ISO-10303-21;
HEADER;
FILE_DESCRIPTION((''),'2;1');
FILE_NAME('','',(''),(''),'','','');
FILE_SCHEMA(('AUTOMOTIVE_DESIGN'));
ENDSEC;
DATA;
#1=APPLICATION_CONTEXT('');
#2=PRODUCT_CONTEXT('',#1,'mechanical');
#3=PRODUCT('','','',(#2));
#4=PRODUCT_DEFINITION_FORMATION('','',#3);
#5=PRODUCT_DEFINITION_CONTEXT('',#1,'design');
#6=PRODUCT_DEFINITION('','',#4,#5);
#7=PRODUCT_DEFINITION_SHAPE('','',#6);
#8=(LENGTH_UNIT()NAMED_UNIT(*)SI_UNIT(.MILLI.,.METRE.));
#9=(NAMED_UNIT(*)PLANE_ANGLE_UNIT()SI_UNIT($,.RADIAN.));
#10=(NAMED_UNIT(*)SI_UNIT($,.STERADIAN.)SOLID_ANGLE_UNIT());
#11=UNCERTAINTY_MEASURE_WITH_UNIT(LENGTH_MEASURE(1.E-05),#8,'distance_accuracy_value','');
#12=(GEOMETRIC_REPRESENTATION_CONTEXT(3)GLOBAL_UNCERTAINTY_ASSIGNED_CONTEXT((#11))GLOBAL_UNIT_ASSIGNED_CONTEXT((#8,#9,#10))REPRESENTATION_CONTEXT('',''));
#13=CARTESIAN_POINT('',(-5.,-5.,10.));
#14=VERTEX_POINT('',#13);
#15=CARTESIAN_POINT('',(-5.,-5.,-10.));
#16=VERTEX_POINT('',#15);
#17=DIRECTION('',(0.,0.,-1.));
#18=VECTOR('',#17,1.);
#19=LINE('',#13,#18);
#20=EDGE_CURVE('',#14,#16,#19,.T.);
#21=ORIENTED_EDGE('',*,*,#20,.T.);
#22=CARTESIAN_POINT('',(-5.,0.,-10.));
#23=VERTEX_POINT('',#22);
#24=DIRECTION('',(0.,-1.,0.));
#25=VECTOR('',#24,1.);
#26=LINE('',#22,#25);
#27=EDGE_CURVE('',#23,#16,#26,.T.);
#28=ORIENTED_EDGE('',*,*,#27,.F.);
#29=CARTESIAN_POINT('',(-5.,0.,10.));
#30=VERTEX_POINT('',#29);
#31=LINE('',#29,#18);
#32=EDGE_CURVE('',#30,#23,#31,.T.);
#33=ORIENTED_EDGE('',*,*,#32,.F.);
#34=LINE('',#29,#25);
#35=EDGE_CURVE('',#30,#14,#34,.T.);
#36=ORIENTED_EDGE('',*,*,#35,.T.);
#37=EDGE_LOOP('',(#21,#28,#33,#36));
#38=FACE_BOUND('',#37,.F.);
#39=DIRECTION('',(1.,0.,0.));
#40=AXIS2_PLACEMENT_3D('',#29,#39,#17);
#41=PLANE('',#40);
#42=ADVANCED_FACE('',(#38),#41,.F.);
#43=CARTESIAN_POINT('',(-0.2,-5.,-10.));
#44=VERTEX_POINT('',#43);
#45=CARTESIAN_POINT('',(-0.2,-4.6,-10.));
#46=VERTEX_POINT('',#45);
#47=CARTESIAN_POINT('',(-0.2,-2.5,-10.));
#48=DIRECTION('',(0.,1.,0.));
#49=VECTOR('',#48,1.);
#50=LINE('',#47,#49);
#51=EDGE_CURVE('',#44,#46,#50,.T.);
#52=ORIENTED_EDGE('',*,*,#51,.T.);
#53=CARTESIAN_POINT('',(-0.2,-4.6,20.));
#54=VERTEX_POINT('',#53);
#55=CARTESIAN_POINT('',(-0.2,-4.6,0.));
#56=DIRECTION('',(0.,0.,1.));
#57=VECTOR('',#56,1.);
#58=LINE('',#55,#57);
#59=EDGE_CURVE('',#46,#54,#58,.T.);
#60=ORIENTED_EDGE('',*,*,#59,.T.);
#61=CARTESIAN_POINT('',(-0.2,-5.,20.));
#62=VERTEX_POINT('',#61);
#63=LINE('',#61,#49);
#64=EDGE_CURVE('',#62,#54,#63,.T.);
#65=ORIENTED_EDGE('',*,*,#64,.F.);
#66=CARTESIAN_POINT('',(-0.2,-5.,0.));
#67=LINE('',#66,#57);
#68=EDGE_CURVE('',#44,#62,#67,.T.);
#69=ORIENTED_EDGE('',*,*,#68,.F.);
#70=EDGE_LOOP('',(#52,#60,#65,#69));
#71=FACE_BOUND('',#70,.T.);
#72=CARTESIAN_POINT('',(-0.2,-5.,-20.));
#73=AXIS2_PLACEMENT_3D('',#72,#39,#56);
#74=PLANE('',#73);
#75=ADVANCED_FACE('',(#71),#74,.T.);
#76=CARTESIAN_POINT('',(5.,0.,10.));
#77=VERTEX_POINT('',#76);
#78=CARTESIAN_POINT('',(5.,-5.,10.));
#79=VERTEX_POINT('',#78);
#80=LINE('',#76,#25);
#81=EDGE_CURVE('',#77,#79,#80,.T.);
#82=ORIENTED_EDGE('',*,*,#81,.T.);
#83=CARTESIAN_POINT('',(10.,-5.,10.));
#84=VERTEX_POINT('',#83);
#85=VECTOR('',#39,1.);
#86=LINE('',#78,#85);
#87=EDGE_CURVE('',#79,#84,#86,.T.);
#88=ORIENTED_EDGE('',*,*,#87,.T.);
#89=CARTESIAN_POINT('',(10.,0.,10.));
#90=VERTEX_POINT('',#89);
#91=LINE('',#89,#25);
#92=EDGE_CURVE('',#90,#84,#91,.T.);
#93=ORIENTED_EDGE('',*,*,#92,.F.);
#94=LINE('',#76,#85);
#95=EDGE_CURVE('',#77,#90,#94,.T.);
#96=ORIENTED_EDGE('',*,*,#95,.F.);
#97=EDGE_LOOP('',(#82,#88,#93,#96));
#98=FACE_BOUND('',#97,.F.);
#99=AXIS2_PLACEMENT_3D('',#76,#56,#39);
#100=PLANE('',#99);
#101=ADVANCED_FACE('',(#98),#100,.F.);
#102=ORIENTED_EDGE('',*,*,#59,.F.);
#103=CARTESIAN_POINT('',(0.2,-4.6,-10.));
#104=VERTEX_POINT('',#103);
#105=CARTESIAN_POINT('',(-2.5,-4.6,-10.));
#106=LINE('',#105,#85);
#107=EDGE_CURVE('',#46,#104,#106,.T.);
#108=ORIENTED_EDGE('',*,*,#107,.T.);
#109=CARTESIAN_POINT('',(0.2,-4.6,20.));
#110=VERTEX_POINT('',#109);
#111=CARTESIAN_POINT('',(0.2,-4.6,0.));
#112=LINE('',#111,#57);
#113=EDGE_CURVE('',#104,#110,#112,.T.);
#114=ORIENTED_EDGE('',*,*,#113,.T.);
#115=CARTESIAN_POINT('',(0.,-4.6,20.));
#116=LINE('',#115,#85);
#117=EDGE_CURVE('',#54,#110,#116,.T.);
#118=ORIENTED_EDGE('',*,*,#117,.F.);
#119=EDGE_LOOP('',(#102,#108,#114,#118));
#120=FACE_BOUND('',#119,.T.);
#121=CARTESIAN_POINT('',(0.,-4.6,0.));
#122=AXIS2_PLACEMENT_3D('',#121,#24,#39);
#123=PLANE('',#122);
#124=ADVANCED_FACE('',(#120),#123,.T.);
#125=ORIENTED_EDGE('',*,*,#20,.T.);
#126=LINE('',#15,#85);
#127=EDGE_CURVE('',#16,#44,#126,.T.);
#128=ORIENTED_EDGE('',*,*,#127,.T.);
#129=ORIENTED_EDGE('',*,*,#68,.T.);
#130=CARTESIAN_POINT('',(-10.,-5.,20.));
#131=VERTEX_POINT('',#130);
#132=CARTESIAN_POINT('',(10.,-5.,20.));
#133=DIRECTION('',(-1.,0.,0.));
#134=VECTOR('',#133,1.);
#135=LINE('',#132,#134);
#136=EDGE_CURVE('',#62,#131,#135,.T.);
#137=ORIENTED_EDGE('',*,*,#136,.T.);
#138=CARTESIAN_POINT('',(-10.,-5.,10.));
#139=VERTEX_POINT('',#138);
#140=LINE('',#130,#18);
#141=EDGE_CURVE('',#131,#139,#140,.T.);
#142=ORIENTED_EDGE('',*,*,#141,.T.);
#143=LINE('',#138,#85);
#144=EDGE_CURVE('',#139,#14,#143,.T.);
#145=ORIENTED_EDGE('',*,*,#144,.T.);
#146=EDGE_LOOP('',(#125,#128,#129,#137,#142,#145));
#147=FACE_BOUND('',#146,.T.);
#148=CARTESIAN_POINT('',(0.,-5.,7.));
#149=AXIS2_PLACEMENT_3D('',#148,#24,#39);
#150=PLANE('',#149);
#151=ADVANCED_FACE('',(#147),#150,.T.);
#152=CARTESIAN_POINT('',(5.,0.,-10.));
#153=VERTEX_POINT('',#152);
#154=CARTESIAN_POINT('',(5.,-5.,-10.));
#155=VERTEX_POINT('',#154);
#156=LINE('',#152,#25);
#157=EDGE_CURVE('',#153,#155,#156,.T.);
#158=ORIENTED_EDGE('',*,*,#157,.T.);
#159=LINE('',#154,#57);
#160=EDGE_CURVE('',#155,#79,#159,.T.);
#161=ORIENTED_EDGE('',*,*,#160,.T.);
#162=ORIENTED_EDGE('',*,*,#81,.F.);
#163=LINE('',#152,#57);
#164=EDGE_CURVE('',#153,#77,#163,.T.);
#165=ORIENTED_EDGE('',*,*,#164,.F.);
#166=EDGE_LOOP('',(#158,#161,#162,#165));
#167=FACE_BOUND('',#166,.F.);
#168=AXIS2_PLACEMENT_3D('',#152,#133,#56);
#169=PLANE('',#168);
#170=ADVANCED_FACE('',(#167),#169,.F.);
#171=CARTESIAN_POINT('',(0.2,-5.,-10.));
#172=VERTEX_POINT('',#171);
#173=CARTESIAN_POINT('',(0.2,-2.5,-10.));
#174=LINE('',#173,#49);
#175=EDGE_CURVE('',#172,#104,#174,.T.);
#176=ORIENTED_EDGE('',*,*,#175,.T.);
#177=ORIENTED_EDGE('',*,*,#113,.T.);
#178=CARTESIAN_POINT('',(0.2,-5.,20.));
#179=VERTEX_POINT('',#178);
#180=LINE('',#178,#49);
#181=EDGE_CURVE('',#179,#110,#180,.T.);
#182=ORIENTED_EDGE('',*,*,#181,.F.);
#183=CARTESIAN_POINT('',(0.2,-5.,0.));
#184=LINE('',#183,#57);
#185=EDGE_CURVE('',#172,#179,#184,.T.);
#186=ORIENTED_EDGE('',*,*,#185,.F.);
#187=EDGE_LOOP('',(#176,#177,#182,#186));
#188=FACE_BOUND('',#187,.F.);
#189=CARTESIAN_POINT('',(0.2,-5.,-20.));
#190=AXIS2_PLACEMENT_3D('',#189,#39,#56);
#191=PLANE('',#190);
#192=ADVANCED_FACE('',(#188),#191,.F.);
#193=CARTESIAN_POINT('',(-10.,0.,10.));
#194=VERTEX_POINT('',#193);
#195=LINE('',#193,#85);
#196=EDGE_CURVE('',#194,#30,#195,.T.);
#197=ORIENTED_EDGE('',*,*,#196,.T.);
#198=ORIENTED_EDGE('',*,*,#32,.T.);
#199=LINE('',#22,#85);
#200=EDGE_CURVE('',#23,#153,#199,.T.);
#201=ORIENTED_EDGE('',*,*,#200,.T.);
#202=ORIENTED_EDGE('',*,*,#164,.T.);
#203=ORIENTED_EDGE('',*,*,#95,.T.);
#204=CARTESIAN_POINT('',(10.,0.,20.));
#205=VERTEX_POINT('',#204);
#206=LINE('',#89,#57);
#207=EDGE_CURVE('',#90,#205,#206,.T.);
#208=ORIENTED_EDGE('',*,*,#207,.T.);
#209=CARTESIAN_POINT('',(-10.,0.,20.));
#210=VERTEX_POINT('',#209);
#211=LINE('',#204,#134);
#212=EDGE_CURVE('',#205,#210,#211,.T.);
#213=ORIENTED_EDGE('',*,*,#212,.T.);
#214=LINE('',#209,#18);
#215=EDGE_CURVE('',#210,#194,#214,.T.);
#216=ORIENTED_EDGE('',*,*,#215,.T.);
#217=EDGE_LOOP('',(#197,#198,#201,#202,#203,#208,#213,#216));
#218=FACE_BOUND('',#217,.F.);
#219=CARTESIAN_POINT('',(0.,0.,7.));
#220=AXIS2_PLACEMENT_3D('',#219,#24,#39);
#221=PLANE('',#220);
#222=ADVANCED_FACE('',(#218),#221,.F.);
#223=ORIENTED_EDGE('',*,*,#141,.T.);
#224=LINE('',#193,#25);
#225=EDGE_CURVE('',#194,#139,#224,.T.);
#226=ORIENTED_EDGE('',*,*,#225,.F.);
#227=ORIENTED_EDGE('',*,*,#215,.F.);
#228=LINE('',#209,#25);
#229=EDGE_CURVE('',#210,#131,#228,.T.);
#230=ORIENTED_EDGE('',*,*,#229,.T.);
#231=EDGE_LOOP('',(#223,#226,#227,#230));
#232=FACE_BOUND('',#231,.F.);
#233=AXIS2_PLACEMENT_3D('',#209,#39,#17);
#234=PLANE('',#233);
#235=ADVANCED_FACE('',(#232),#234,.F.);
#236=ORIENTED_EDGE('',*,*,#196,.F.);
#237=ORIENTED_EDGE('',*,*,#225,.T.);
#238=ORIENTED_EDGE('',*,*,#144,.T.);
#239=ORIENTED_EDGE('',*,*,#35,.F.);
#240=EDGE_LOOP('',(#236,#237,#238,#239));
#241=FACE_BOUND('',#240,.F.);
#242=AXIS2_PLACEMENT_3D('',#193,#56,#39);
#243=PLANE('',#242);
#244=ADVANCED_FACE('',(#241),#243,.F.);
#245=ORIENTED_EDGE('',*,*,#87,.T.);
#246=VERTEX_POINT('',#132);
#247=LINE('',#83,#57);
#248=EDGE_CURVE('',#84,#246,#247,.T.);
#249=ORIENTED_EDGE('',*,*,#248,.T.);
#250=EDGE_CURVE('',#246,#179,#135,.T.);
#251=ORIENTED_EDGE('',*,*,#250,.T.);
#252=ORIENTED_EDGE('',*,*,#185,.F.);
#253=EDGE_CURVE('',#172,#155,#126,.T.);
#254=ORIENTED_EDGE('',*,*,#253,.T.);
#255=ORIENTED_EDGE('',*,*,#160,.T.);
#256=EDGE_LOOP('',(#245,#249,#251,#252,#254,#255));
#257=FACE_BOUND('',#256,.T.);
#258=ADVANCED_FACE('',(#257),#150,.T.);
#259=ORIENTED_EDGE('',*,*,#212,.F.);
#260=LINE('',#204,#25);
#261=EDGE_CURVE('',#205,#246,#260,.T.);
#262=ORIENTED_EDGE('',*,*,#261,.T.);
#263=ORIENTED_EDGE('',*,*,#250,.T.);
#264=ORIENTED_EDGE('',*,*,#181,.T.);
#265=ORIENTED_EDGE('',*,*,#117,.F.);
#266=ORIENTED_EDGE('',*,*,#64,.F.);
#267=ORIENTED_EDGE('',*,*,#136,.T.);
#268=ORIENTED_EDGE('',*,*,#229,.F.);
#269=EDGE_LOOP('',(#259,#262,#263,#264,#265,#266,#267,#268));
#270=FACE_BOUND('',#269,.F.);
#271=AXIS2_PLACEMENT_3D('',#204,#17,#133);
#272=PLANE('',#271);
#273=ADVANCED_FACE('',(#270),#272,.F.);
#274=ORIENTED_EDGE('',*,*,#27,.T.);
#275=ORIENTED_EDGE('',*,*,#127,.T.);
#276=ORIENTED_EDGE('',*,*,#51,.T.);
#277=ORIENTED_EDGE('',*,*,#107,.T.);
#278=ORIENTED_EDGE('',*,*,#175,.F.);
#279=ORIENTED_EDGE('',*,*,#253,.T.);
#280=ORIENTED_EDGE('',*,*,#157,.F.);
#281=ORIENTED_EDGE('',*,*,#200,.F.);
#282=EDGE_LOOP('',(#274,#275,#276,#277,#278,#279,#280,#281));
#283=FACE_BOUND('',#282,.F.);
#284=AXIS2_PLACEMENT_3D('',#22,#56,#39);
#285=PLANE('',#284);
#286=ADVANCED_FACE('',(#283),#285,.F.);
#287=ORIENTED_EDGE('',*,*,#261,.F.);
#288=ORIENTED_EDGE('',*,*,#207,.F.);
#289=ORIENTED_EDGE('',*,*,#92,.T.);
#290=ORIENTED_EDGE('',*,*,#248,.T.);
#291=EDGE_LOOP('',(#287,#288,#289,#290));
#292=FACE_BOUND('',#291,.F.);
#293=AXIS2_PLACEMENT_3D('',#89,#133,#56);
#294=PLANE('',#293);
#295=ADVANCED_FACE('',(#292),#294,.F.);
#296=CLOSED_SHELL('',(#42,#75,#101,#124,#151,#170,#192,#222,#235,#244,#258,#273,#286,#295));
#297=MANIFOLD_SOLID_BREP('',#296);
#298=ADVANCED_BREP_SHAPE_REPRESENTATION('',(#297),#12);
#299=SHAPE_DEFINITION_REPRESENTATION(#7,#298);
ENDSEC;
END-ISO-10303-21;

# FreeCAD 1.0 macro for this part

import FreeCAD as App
import Part
import Sketcher

V = App.Vector
Q = App.Units.Quantity

doc = App.newDocument("Part")
params = doc.addObject("Spreadsheet::Sheet", "Params")
for row, (alias, value) in enumerate([
    ("sketch1_width", "10 mm"),
    ("sketch1_width2", "5 mm"),
    ("pad1_length", "5 mm"),
    ("sketch2_height", "40 mm"),
    ("sketch2_width", "0.4 mm"),
    ("pocket1_length", "0.4 mm"),
], start=1):
    params.set(f"A{row}", alias)
    params.set(f"B{row}", "=" + value)
    params.setAlias(f"B{row}", alias)

body = doc.addObject("PartDesign::Body", "Body")

# Sketch on XZ plane
sketch1 = body.newObject("Sketcher::SketchObject", "Sketch")
sketch1.AttachmentSupport = (doc.getObject("XZ_Plane"), [""])
sketch1.MapMode = "FlatFace"
sketch1.addGeometry(Part.LineSegment(V(-5, -10, 0), V(5, -10, 0)), False)
sketch1.addGeometry(Part.LineSegment(V(5, -10, 0), V(5, 10, 0)), False)
sketch1.addGeometry(Part.LineSegment(V(5, 10, 0), V(10, 10, 0)), False)
sketch1.addGeometry(Part.LineSegment(V(10, 10, 0), V(10, 20, 0)), False)
sketch1.addGeometry(Part.LineSegment(V(10, 20, 0), V(-10, 20, 0)), False)
sketch1.addGeometry(Part.LineSegment(V(-10, 20, 0), V(-10, 10, 0)), False)
sketch1.addGeometry(Part.LineSegment(V(-10, 10, 0), V(-5, 10, 0)), False)
sketch1.addGeometry(Part.LineSegment(V(-5, 10, 0), V(-5, -10, 0)), False)
sketch1.addConstraint(Sketcher.Constraint("Coincident", 0, 2, 1, 1))
sketch1.addConstraint(Sketcher.Constraint("Coincident", 1, 2, 2, 1))
sketch1.addConstraint(Sketcher.Constraint("Coincident", 2, 2, 3, 1))
sketch1.addConstraint(Sketcher.Constraint("Coincident", 3, 2, 4, 1))
sketch1.addConstraint(Sketcher.Constraint("Coincident", 4, 2, 5, 1))
sketch1.addConstraint(Sketcher.Constraint("Coincident", 5, 2, 6, 1))
sketch1.addConstraint(Sketcher.Constraint("Coincident", 6, 2, 7, 1))
sketch1.addConstraint(Sketcher.Constraint("Coincident", 7, 2, 0, 1))
sketch1.addConstraint(Sketcher.Constraint("Horizontal", 0))
sketch1.addConstraint(Sketcher.Constraint("Vertical", 1))
sketch1.addConstraint(Sketcher.Constraint("Horizontal", 2))
sketch1.addConstraint(Sketcher.Constraint("Vertical", 3))
sketch1.addConstraint(Sketcher.Constraint("Horizontal", 4))
sketch1.addConstraint(Sketcher.Constraint("Vertical", 5))
sketch1.addConstraint(Sketcher.Constraint("Horizontal", 6))
sketch1.addConstraint(Sketcher.Constraint("Vertical", 7))
sketch1.addConstraint(Sketcher.Constraint("Symmetric", 0, 2, 6, 2, -1, 1))
sketch1.addConstraint(Sketcher.Constraint("Symmetric", 2, 2, 5, 2, -2))
sketch1.addConstraint(Sketcher.Constraint("Equal", 4, 1))
sketch1.addConstraint(Sketcher.Constraint("Equal", 0, 3))
sketch1.addConstraint(Sketcher.Constraint("DistanceX", 0, 1, 0, 2, Q("10 mm")))
sketch1.addConstraint(Sketcher.Constraint("DistanceX", 2, 1, 2, 2, Q("5 mm")))
sketch1.setExpression("Constraints[20]", "Params.sketch1_width")
sketch1.setExpression("Constraints[21]", "Params.sketch1_width2")
pad1 = body.newObject("PartDesign::Pad", "Pad")
pad1.Profile = sketch1
pad1.setExpression("Length", "Params.pad1_length")

# Sketch on XZ plane
sketch2 = body.newObject("Sketcher::SketchObject", "Sketch001")
sketch2.AttachmentSupport = (doc.getObject("XZ_Plane"), [""])
sketch2.MapMode = "FlatFace"
sketch2.AttachmentOffset = App.Placement(V(0, 0, 5), App.Rotation())
sketch2.addGeometry(Part.LineSegment(V(-0.2, 20, 0), V(-0.2, -20, 0)), False)
sketch2.addGeometry(Part.LineSegment(V(-0.2, -20, 0), V(0.2, -20, 0)), False)
sketch2.addGeometry(Part.LineSegment(V(0.2, -20, 0), V(0.2, 20, 0)), False)
sketch2.addGeometry(Part.LineSegment(V(0.2, 20, 0), V(-0.2, 20, 0)), False)
sketch2.addConstraint(Sketcher.Constraint("Coincident", 0, 2, 1, 1))
sketch2.addConstraint(Sketcher.Constraint("Coincident", 1, 2, 2, 1))
sketch2.addConstraint(Sketcher.Constraint("Coincident", 2, 2, 3, 1))
sketch2.addConstraint(Sketcher.Constraint("Coincident", 3, 2, 0, 1))
sketch2.addConstraint(Sketcher.Constraint("Vertical", 0))
sketch2.addConstraint(Sketcher.Constraint("Horizontal", 1))
sketch2.addConstraint(Sketcher.Constraint("Vertical", 2))
sketch2.addConstraint(Sketcher.Constraint("Horizontal", 3))
sketch2.addConstraint(Sketcher.Constraint("Symmetric", 0, 2, 2, 2, -1, 1))
sketch2.addConstraint(Sketcher.Constraint("DistanceY", 0, 2, 0, 1, Q("40 mm")))
sketch2.addConstraint(Sketcher.Constraint("DistanceX", 1, 1, 1, 2, Q("0.4 mm")))
sketch2.setExpression("Constraints[9]", "Params.sketch2_height")
sketch2.setExpression("Constraints[10]", "Params.sketch2_width")
pocket1 = body.newObject("PartDesign::Pocket", "Pocket")
pocket1.Profile = sketch2
pocket1.setExpression("Length", "Params.pocket1_length")

doc.recompute()
